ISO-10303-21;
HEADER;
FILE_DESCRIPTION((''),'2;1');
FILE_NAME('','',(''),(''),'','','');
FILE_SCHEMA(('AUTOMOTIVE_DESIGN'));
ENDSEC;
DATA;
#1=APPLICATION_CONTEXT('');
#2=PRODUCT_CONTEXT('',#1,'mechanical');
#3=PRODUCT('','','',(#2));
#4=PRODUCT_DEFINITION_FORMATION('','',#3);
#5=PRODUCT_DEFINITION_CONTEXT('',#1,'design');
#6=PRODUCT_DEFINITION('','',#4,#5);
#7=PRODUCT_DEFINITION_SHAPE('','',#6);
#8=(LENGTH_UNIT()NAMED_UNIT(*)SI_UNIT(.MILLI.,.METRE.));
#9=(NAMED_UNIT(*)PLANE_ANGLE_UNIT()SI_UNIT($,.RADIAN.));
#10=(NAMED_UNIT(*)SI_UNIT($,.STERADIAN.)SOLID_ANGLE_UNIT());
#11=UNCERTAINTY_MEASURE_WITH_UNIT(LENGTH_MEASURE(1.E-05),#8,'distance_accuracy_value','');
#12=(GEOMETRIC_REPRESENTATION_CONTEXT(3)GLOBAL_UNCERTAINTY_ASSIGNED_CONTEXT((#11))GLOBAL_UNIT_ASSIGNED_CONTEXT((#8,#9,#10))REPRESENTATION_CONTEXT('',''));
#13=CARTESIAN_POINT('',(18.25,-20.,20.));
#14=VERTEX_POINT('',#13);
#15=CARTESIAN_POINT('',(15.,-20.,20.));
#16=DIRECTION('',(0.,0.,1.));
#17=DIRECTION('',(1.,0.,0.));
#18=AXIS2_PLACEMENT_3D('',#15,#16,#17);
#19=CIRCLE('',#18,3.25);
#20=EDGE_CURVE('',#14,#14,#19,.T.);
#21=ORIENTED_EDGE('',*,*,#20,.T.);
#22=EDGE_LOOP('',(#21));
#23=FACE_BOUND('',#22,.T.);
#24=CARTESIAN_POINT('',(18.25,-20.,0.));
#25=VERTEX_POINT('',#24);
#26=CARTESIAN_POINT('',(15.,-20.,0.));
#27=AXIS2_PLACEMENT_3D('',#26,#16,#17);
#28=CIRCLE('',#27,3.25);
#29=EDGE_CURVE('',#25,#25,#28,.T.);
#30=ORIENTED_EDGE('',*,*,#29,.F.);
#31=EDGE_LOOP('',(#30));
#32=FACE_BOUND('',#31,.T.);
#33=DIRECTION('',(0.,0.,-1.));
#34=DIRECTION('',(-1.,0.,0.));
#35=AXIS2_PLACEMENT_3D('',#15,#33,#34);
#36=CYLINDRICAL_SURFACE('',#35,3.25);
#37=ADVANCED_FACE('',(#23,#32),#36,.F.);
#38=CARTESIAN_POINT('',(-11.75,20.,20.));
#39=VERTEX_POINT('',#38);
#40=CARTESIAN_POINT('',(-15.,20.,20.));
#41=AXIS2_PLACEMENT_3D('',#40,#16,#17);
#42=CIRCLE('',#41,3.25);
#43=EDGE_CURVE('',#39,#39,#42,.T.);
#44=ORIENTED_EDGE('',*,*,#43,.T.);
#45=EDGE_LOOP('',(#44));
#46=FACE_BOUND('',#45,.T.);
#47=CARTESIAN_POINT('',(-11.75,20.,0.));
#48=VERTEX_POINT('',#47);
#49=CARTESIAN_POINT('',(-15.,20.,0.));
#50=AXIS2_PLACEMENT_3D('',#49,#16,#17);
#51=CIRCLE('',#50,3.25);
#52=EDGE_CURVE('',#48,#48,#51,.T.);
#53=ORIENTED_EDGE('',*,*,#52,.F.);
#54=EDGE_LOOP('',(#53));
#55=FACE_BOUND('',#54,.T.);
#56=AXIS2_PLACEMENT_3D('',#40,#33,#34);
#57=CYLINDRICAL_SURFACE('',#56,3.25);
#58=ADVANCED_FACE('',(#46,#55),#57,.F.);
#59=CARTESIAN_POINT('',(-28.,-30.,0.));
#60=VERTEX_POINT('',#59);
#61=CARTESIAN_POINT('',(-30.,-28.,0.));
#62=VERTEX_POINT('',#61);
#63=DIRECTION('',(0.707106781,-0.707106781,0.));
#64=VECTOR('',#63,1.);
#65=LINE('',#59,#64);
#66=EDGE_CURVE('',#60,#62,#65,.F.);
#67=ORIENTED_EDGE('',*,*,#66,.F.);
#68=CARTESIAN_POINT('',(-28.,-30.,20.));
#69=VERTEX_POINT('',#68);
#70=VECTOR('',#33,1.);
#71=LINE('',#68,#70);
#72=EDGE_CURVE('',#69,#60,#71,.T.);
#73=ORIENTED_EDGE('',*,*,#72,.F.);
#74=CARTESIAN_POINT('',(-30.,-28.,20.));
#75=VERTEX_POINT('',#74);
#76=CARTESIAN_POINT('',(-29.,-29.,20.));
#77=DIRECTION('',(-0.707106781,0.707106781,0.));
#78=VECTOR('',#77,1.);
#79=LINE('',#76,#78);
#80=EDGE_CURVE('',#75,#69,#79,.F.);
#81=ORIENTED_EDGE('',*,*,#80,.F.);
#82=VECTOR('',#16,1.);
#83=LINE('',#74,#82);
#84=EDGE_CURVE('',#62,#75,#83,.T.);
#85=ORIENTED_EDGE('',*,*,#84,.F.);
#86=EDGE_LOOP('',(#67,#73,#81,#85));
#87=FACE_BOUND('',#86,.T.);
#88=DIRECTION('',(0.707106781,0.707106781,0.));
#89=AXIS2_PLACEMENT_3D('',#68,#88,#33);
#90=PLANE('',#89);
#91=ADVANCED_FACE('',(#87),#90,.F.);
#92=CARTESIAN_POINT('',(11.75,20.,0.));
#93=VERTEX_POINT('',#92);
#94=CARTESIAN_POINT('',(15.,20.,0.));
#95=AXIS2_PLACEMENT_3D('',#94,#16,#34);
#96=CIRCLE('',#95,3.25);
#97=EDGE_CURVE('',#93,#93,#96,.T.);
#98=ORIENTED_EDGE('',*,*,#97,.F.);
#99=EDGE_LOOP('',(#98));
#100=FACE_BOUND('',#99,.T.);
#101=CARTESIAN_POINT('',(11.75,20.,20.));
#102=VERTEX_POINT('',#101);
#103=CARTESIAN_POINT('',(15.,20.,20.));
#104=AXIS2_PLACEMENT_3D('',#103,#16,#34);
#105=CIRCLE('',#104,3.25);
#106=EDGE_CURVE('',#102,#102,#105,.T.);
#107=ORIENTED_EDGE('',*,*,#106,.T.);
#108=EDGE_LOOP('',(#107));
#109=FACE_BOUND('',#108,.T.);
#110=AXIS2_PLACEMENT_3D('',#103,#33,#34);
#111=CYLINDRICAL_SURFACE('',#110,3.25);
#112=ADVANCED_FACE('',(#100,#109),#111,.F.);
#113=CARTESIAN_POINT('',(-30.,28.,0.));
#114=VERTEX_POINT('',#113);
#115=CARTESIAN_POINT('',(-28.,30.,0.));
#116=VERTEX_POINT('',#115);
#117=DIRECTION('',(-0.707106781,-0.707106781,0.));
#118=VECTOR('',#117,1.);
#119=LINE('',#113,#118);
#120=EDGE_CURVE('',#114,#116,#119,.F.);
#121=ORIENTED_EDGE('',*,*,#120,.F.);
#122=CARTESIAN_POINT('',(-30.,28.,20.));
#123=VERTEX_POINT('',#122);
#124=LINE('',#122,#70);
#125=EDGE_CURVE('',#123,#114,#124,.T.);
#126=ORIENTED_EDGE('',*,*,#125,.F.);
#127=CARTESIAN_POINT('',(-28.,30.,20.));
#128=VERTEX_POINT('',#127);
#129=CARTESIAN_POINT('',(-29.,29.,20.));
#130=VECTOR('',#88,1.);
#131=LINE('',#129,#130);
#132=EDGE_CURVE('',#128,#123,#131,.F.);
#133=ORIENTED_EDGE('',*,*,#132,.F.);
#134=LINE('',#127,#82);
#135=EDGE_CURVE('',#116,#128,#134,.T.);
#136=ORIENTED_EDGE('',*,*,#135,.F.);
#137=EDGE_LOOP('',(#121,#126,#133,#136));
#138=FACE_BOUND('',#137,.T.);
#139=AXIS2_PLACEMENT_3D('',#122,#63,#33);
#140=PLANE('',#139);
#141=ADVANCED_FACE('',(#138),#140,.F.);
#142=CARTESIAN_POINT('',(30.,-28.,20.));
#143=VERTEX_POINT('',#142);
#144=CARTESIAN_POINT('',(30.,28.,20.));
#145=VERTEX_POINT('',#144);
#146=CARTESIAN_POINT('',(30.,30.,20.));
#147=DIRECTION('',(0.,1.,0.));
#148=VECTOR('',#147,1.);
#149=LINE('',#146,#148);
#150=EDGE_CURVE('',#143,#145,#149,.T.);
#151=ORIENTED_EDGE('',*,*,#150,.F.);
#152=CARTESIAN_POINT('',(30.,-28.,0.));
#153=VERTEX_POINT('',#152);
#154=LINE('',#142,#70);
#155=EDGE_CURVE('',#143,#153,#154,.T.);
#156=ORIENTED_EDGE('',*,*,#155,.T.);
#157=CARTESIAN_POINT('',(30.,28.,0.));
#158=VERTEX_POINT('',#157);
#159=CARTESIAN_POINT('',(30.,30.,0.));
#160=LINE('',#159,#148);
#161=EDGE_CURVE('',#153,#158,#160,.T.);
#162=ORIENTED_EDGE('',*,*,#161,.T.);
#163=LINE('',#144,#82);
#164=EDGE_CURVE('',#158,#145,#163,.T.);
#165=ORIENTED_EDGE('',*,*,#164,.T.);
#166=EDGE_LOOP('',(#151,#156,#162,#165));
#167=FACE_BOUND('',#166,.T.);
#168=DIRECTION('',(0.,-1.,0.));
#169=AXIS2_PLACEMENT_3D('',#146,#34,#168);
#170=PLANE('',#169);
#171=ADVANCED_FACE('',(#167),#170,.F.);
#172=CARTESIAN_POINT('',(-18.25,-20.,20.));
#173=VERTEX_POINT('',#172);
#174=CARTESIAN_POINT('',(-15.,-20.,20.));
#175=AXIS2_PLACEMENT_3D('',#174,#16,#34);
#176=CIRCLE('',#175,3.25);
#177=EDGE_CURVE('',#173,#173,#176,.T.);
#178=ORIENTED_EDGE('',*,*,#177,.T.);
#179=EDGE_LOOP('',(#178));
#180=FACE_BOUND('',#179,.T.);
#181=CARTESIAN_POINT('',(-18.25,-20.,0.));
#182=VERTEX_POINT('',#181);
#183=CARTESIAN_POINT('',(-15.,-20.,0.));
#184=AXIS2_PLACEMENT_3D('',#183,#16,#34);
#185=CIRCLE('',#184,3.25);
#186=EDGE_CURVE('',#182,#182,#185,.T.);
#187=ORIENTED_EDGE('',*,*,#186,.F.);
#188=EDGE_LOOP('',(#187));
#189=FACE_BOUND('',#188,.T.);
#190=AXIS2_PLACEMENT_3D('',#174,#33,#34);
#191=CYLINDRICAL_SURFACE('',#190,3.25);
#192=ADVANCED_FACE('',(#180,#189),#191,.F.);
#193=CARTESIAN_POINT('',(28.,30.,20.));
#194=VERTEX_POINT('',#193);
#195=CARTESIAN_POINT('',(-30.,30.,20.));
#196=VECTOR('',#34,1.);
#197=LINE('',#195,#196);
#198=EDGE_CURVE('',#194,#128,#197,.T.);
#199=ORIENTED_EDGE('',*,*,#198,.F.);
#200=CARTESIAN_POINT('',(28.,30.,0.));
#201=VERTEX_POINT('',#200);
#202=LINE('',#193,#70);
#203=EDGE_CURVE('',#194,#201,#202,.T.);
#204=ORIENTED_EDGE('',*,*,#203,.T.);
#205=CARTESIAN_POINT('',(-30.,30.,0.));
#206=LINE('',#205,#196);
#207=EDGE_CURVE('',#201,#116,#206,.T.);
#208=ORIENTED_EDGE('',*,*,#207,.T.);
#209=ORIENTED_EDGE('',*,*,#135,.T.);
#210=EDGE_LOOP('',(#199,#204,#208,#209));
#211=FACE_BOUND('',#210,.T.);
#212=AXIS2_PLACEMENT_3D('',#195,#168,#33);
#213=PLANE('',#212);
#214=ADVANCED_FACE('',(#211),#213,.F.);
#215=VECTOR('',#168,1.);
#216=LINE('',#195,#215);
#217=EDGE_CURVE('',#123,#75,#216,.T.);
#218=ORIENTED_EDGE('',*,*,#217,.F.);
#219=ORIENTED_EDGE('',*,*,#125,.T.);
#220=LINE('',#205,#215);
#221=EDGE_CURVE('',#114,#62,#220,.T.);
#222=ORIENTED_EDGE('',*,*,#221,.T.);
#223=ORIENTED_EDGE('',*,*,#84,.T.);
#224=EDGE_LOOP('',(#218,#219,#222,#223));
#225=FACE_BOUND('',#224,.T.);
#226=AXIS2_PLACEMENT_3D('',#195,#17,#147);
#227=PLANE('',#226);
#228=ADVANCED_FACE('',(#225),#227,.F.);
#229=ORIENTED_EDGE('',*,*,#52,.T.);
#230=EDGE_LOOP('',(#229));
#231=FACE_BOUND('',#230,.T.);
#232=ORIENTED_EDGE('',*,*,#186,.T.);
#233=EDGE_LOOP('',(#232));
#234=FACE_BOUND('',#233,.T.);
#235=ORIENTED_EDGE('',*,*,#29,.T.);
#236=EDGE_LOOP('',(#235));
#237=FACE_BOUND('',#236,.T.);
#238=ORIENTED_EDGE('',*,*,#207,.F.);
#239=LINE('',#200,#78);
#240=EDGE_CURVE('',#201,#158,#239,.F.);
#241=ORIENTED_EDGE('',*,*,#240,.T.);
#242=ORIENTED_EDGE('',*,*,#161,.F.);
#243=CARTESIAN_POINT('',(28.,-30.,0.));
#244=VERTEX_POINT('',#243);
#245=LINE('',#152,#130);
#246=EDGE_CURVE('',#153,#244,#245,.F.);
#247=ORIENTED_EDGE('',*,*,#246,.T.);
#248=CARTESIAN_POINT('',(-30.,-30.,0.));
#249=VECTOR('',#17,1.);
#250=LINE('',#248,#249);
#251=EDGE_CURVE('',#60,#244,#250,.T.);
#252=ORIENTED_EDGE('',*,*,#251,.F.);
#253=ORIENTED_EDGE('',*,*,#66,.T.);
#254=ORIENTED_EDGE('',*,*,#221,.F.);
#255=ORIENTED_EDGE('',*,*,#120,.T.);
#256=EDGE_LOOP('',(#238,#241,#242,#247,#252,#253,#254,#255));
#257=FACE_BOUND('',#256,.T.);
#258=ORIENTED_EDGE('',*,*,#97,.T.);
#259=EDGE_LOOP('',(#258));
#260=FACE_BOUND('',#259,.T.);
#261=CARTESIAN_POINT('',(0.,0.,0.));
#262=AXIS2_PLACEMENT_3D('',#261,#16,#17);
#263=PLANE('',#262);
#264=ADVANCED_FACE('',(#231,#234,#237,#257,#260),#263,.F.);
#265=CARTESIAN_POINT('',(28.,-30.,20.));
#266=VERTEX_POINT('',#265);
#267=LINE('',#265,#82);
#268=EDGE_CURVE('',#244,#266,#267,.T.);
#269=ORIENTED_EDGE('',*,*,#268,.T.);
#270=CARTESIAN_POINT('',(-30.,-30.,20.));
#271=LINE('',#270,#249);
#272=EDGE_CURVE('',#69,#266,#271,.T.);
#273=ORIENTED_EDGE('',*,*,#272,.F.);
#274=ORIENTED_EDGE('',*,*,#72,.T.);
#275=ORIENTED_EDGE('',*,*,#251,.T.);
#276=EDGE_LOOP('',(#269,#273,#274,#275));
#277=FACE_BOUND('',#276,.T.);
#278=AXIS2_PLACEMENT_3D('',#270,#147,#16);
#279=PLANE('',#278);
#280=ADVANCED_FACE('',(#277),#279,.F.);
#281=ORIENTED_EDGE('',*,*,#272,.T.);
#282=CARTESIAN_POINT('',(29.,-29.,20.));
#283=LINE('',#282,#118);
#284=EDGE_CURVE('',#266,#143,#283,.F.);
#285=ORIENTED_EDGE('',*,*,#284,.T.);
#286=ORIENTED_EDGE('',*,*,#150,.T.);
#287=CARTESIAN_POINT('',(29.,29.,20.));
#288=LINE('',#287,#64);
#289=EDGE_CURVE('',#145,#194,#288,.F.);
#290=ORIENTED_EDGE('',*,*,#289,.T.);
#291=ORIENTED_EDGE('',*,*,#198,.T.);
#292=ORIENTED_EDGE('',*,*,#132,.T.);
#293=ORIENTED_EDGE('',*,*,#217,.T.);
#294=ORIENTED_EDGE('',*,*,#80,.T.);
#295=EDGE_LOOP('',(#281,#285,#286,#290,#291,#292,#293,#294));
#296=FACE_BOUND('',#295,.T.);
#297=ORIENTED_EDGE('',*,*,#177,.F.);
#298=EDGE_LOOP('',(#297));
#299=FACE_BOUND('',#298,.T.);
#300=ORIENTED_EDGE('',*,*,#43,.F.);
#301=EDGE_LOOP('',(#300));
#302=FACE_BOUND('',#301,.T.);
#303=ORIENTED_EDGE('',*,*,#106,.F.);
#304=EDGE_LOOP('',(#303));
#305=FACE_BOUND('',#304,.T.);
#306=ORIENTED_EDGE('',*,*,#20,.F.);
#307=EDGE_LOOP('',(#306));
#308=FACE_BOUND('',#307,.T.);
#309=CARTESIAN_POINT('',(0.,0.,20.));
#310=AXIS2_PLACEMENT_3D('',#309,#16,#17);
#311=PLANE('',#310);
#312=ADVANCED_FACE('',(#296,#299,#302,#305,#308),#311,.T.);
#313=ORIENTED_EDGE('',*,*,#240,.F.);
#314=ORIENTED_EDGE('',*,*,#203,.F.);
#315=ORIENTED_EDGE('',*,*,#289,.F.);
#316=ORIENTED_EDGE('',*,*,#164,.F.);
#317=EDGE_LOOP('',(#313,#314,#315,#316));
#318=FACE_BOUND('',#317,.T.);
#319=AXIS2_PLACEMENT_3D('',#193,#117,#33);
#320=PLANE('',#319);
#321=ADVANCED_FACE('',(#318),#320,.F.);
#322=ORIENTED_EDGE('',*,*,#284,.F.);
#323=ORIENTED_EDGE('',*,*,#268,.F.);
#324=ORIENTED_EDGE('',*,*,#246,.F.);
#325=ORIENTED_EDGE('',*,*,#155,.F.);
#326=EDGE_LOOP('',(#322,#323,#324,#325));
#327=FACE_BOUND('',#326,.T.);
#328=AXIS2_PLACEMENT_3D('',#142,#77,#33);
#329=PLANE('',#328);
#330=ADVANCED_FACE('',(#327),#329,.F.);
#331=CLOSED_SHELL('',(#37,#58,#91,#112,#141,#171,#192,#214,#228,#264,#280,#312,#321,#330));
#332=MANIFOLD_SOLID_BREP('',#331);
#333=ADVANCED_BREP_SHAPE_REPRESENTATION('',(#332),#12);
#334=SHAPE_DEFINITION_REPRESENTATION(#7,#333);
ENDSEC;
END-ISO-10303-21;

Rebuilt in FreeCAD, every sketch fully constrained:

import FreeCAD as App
import Part
import Sketcher

V = App.Vector


def edges_at(feature, points):
    """Names of the edges that pass closest to the given points."""
    edges = feature.Shape.Edges
    near = lambda p: min(range(len(edges)), key=lambda i: edges[i].distToShape(Part.Vertex(*p))[0])
    return sorted({f"Edge{near(p) + 1}" for p in points})


def add_polygon(sketch, points):
    """Adds a closed chain of lines whose ends are joined by coincident constraints."""
    first, n = sketch.GeometryCount, len(points)
    for a, b in zip(points, points[1:] + points[:1]):
        sketch.addGeometry(Part.LineSegment(App.Vector(*a, 0), App.Vector(*b, 0)), False)
    for i in range(n):
        sketch.addConstraint(Sketcher.Constraint("Coincident", first + i, 2, first + (i + 1) % n, 1))

doc = App.newDocument("Part")
params = doc.addObject("Spreadsheet::Sheet", "Params")
for row, (alias, value) in enumerate([
    ("sketch1_diameter", "6.5 mm"),
    ("sketch1_width", "60 mm"),
    ("pad1_length", "20 mm"),
    ("chamfer_size", "2 mm"),
], start=1):
    params.set(f"A{row}", alias)
    params.set(f"B{row}", "=" + value)
    params.setAlias(f"B{row}", alias)

body = doc.addObject("PartDesign::Body", "Body")

# Sketch on XY plane
sketch1 = body.newObject("Sketcher::SketchObject", "Sketch")
sketch1.AttachmentSupport = (doc.getObject("XY_Plane"), [""])
sketch1.MapMode = "FlatFace"
add_polygon(sketch1, [(-30, 30), (-30, -30), (30, -30), (30, 30)])  # lines 0-3
sketch1.addGeometry(Part.Circle(V(-15, -20, 0), V(0, 0, 1), 3.2), False)  # 4
sketch1.addGeometry(Part.Circle(V(15, -20, 0), V(0, 0, 1), 3.2), False)  # 5
sketch1.addGeometry(Part.Circle(V(-15, 20, 0), V(0, 0, 1), 3.2), False)  # 6
sketch1.addGeometry(Part.Circle(V(15, 20, 0), V(0, 0, 1), 3.2), False)  # 7
sketch1.addConstraint(Sketcher.Constraint("Vertical", 0))
sketch1.addConstraint(Sketcher.Constraint("Horizontal", 1))
sketch1.addConstraint(Sketcher.Constraint("Vertical", 2))
sketch1.addConstraint(Sketcher.Constraint("Horizontal", 3))
sketch1.addConstraint(Sketcher.Constraint("Equal", 4, 5))
sketch1.addConstraint(Sketcher.Constraint("Equal", 5, 6))
sketch1.addConstraint(Sketcher.Constraint("Equal", 6, 7))
sketch1.addConstraint(Sketcher.Constraint("Symmetric", 5, 3, 6, 3, -1, 1))
sketch1.addConstraint(Sketcher.Constraint("Symmetric", 4, 3, 7, 3, -1, 1))
sketch1.addConstraint(Sketcher.Constraint("Symmetric", 0, 2, 2, 2, -1, 1))
sketch1.addConstraint(Sketcher.Constraint("Symmetric", 4, 3, 5, 3, -2))
sketch1.addConstraint(Sketcher.Constraint("Equal", 3, 0))
sketch1.addConstraint(Sketcher.Constraint("Diameter", 4, 6.5))
sketch1.addConstraint(Sketcher.Constraint("DistanceX", 1, 1, 1, 2, 60.0))
sketch1.addConstraint(Sketcher.Constraint("DistanceX", 4, 3, -1, 1, 15.0))
sketch1.addConstraint(Sketcher.Constraint("DistanceY", 4, 3, -1, 1, 20.0))
sketch1.setExpression("Constraints[16]", "Params.sketch1_diameter")
sketch1.setExpression("Constraints[17]", "Params.sketch1_width")
pad1 = body.newObject("PartDesign::Pad", "Pad")
pad1.Profile = sketch1
pad1.setExpression("Length", "Params.pad1_length")
doc.recompute()

chamfer = body.newObject("PartDesign::Chamfer", "Chamfer")
chamfer.Base = (pad1, edges_at(pad1, [
    (30, -30, 10),
    (-30, -30, 10),
    (-30, 30, 10),
    (30, 30, 10),
]))
chamfer.setExpression("Size", "Params.chamfer_size")

doc.recompute()
